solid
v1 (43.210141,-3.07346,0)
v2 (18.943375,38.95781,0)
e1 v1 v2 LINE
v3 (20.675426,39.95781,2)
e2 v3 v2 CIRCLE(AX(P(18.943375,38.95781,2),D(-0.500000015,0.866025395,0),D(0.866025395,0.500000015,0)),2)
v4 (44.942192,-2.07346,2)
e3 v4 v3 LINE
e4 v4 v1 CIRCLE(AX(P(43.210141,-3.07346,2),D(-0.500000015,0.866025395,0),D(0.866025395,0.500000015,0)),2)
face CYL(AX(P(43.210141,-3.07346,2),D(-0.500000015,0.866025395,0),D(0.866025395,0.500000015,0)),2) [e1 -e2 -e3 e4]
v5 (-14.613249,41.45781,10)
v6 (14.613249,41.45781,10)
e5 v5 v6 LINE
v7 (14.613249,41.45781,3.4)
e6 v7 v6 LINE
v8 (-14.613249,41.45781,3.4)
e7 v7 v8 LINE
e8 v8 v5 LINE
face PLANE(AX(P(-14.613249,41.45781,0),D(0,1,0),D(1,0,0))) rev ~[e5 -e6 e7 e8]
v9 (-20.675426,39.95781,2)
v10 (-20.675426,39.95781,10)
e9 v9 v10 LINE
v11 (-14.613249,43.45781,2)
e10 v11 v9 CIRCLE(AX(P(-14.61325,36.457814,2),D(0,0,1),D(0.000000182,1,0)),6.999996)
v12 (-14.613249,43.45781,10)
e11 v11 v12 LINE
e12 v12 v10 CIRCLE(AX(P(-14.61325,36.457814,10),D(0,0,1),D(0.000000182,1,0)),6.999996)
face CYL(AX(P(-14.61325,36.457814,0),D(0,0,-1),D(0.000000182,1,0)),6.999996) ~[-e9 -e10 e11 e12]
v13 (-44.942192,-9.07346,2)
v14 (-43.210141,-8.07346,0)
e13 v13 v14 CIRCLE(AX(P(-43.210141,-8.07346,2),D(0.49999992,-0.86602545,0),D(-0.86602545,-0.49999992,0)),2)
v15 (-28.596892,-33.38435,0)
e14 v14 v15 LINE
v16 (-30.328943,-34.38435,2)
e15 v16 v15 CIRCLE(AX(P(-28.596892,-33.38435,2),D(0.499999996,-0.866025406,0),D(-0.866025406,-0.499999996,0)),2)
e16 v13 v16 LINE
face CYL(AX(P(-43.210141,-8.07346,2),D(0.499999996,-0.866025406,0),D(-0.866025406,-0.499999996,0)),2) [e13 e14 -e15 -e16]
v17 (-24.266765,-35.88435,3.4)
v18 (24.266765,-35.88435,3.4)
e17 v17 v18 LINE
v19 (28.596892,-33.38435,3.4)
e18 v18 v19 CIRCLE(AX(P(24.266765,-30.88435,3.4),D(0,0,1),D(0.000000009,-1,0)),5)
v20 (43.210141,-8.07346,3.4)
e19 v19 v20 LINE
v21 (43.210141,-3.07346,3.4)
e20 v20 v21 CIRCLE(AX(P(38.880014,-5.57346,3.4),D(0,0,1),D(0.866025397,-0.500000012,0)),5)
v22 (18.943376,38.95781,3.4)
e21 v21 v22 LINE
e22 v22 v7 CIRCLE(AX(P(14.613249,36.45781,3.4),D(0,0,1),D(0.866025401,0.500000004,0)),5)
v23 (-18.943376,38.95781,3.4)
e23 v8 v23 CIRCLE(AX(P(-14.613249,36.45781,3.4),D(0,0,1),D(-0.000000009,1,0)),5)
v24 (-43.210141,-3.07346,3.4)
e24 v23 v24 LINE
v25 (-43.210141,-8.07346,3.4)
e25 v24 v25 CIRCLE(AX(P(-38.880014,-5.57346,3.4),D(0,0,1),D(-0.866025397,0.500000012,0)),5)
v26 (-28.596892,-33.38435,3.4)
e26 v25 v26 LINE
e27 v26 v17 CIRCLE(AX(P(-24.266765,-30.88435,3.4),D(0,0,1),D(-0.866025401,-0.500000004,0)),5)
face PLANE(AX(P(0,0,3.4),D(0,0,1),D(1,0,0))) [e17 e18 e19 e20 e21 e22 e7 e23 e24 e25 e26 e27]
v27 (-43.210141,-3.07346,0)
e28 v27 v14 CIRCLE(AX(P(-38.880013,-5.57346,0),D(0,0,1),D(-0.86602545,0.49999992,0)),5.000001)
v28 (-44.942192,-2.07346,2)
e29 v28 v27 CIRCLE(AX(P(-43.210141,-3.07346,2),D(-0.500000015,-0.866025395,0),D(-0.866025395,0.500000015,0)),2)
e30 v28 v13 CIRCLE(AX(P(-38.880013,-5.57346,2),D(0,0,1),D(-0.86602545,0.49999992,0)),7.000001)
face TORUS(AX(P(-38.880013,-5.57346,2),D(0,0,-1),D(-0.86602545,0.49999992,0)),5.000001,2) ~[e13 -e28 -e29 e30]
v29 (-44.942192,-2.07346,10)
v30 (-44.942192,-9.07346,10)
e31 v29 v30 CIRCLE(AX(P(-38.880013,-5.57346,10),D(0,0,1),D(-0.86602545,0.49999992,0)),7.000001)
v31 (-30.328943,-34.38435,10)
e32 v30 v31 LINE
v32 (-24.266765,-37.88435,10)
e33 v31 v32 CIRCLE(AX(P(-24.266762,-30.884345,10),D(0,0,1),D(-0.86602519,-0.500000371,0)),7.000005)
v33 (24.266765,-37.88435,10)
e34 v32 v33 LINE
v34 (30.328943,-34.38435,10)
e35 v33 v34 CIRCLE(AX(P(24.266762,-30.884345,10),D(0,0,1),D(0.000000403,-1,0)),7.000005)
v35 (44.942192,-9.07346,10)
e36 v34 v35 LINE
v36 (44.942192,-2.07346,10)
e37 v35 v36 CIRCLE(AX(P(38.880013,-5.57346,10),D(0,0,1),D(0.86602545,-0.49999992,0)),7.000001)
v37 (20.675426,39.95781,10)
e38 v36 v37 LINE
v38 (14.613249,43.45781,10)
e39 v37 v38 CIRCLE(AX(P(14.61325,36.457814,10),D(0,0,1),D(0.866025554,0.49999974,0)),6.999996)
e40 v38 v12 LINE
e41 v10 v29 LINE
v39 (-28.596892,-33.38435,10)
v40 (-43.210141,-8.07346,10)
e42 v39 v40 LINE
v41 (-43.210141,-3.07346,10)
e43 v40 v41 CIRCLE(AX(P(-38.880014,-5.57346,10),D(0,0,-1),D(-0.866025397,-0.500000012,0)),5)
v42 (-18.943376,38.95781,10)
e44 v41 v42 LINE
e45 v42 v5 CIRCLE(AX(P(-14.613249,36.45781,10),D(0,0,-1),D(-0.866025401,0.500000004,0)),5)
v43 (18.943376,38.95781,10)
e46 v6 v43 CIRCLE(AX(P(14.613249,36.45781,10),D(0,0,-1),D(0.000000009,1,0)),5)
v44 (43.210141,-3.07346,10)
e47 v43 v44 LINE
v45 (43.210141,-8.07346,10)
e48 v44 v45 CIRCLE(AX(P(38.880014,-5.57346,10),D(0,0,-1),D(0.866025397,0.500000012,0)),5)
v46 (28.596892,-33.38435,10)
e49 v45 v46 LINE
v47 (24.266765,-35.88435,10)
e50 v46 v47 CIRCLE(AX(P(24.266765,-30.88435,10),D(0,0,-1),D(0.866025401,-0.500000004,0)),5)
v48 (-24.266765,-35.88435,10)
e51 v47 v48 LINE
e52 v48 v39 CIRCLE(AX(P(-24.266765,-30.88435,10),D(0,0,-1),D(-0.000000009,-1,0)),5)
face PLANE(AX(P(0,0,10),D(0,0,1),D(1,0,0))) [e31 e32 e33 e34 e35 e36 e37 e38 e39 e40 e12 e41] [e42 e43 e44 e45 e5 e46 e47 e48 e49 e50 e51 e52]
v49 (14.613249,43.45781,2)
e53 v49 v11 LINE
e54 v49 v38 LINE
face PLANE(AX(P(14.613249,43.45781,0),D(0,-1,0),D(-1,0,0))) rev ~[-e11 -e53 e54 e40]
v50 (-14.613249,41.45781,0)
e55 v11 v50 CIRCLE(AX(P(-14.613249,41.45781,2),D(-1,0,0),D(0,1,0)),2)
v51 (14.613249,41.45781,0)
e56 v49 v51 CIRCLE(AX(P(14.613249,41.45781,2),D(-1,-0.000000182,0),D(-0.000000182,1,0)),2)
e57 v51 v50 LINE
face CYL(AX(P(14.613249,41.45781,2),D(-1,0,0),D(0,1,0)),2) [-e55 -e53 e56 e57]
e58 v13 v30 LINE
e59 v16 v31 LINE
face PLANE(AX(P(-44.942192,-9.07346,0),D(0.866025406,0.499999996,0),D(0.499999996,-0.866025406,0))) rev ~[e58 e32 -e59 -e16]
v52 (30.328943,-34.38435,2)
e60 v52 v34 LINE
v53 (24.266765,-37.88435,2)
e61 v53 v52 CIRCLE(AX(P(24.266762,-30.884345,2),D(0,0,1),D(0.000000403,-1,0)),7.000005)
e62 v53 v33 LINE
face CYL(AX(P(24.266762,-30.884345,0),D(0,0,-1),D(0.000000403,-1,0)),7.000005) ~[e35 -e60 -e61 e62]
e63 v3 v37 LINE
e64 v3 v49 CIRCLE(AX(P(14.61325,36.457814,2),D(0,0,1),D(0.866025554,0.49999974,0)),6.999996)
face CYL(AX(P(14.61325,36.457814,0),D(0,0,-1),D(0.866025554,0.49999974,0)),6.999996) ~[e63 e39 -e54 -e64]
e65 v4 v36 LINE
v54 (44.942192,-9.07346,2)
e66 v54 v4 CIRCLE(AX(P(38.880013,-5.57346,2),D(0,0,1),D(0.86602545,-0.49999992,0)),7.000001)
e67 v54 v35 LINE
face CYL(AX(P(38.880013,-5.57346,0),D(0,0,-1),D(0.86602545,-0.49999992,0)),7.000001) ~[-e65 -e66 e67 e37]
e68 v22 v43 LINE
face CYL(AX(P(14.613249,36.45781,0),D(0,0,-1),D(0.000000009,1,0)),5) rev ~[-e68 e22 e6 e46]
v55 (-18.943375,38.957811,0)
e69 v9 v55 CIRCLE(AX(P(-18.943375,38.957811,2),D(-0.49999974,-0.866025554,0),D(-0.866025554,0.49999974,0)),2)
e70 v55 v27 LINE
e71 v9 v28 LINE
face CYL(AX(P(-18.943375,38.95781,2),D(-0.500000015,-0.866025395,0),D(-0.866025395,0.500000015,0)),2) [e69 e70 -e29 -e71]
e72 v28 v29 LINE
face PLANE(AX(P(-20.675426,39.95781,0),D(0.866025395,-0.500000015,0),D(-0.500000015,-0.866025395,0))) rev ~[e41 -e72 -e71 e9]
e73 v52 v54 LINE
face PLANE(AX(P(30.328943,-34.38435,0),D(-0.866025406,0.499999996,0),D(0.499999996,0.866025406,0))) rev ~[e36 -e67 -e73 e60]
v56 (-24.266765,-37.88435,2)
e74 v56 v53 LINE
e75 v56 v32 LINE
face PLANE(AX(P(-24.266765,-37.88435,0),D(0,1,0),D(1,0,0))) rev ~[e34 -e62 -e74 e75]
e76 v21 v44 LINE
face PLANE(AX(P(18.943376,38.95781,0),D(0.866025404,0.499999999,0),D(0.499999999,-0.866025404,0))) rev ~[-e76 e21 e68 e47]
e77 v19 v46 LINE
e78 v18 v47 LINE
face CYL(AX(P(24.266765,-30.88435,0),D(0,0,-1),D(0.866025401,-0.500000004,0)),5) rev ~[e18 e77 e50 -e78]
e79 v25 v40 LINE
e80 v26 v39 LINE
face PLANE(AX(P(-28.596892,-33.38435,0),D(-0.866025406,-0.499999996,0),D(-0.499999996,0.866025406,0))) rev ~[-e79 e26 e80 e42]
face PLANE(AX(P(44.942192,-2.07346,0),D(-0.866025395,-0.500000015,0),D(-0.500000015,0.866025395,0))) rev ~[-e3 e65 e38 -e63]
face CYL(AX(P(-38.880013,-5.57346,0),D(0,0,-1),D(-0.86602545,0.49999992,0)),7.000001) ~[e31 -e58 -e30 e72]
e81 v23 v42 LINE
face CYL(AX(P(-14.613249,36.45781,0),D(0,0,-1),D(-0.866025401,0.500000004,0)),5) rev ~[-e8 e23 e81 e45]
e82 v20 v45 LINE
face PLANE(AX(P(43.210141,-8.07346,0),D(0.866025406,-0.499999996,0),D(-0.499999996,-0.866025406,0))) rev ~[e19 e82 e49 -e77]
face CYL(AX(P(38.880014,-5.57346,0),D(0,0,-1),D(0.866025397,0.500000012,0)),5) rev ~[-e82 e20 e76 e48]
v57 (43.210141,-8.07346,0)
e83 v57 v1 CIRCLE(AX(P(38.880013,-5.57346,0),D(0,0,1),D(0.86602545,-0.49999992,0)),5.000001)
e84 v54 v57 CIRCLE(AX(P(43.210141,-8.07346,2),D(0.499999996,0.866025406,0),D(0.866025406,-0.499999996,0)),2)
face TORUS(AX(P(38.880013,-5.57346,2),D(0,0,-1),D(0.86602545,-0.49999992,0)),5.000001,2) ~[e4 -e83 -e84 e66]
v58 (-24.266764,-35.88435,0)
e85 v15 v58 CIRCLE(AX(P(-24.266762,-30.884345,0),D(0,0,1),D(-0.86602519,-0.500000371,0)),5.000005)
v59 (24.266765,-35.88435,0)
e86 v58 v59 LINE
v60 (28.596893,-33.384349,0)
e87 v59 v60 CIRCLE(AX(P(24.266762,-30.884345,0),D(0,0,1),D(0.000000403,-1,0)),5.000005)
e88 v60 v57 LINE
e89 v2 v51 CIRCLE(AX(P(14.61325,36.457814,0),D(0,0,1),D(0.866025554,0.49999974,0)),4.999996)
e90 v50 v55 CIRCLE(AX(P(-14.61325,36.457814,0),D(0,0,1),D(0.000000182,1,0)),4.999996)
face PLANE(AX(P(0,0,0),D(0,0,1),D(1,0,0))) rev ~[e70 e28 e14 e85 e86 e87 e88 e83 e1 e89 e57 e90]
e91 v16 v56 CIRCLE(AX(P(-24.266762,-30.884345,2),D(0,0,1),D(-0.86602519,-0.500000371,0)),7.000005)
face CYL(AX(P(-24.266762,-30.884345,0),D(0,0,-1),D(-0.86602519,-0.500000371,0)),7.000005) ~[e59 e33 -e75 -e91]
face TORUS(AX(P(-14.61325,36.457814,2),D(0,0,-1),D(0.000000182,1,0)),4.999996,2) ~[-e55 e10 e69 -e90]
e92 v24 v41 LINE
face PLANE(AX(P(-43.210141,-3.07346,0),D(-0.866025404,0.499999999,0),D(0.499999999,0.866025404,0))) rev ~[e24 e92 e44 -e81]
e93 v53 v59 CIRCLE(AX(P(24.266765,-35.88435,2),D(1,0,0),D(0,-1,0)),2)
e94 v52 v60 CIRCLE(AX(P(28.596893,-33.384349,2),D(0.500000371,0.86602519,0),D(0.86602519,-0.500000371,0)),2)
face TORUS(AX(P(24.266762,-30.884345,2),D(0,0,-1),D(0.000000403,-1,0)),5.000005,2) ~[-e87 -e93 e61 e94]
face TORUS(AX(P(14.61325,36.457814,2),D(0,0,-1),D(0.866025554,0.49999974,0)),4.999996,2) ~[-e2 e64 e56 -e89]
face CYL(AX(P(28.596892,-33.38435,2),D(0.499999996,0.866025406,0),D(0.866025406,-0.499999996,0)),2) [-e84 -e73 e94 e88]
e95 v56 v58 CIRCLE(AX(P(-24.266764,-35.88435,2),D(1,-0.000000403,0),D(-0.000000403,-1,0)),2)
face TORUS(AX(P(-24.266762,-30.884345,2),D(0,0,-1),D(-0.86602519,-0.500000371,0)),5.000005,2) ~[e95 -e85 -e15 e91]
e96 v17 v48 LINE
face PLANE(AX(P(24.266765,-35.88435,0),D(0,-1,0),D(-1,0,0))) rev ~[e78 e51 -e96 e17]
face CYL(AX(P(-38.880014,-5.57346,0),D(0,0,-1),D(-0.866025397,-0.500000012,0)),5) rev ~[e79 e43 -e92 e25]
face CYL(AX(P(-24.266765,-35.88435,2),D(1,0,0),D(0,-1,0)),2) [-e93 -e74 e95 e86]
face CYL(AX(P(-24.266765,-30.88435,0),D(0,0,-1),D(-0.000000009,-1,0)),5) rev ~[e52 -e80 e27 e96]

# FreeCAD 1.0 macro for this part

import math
import FreeCAD as App
import Part
import Sketcher
Q = App.Units.Quantity


def edges_at(feature, points):
    """Names of the edges that pass closest to the given points."""
    edges = feature.Shape.Edges
    near = lambda p: min(range(len(edges)), key=lambda i: edges[i].distToShape(Part.Vertex(*p))[0])
    return sorted({f"Edge{near(p) + 1}" for p in points})

doc = App.newDocument("Part")
body = doc.addObject("PartDesign::Body", "Body")

sketch1 = body.newObject("Sketcher::SketchObject", "Sketch")
sketch1.AttachmentSupport = (doc.getObject("XY_Plane"), [""])
sketch1.MapMode = "FlatFace"
sketch1.addGeometry([
    Part.ArcOfCircle(Part.Circle(App.Vector(14.6, 36.5, 0), App.Vector(0, 0, 1), 5), math.radians(30), math.radians(90)),
    Part.LineSegment(App.Vector(14.6, 41.5, 0), App.Vector(-14.6, 41.5, 0)),
    Part.ArcOfCircle(Part.Circle(App.Vector(-14.6, 36.5, 0), App.Vector(0, 0, 1), 5), math.radians(90), math.radians(150)),
    Part.LineSegment(App.Vector(-18.9, 39, 0), App.Vector(-43.2, -3.1, 0)),
    Part.ArcOfCircle(Part.Circle(App.Vector(-38.9, -5.6, 0), App.Vector(0, 0, 1), 5), math.radians(150), math.radians(210)),
    Part.LineSegment(App.Vector(-43.2, -8.1, 0), App.Vector(-28.6, -33.4, 0)),
    Part.ArcOfCircle(Part.Circle(App.Vector(-24.3, -30.9, 0), App.Vector(0, 0, 1), 5), math.radians(-150), math.radians(-90)),
    Part.LineSegment(App.Vector(-24.3, -35.9, 0), App.Vector(24.3, -35.9, 0)),
    Part.ArcOfCircle(Part.Circle(App.Vector(24.3, -30.9, 0), App.Vector(0, 0, 1), 5), math.radians(-90), math.radians(-30)),
    Part.LineSegment(App.Vector(28.6, -33.4, 0), App.Vector(43.2, -8.1, 0)),
    Part.ArcOfCircle(Part.Circle(App.Vector(38.9, -5.6, 0), App.Vector(0, 0, 1), 5), math.radians(-30), math.radians(30)),
    Part.LineSegment(App.Vector(43.2, -3.1, 0), App.Vector(18.9, 39, 0)),
], False)
sketch1.addConstraint([
    Sketcher.Constraint("Tangent", 0, 2, 1, 1),
    Sketcher.Constraint("Tangent", 1, 2, 2, 1),
    Sketcher.Constraint("Tangent", 2, 2, 3, 1),
    Sketcher.Constraint("Tangent", 3, 2, 4, 1),
    Sketcher.Constraint("Tangent", 4, 2, 5, 1),
    Sketcher.Constraint("Tangent", 5, 2, 6, 1),
    Sketcher.Constraint("Tangent", 6, 2, 7, 1),
    Sketcher.Constraint("Tangent", 7, 2, 8, 1),
    Sketcher.Constraint("Tangent", 8, 2, 9, 1),
    Sketcher.Constraint("Tangent", 9, 2, 10, 1),
    Sketcher.Constraint("Tangent", 10, 2, 11, 1),
    Sketcher.Constraint("Tangent", 11, 2, 0, 1),
    Sketcher.Constraint("Horizontal", 1),
    Sketcher.Constraint("Horizontal", 7),
    Sketcher.Constraint("Equal", 0, 2),
    Sketcher.Constraint("Equal", 2, 4),
    Sketcher.Constraint("Equal", 4, 6),
    Sketcher.Constraint("Equal", 6, 8),
    Sketcher.Constraint("Equal", 8, 10),
    Sketcher.Constraint("Symmetric", 4, 3, 10, 3, -2),
    Sketcher.Constraint("Parallel", 3, 9),
    Sketcher.Constraint("Parallel", 5, 11),
    Sketcher.Constraint("Horizontal", 5, 2, 8, 2),
    Sketcher.Constraint("Radius", 0, 5.0),
    Sketcher.Constraint("Angle", 3, Q("-120 deg")),
    Sketcher.Constraint("Distance", 5, 29.226498),
    Sketcher.Constraint("DistanceX", 7, 1, 7, 2, 48.53353),
    Sketcher.Constraint("Distance", 3, 48.53353),
    Sketcher.Constraint("DistanceY", -1, 1, 0, 3, 36.45781),
])
pad1 = body.newObject("PartDesign::Pad", "Pad")
pad1.Profile = sketch1
pad1.Length = 3.4

sketch2 = body.newObject("Sketcher::SketchObject", "Sketch001")
sketch2.AttachmentSupport = (doc.getObject("XY_Plane"), [""])
sketch2.MapMode = "FlatFace"
sketch2.addGeometry([
    Part.LineSegment(App.Vector(44.9, -2.1, 0), App.Vector(20.7, 40, 0)),
    Part.ArcOfCircle(Part.Circle(App.Vector(14.6, 36.5, 0), App.Vector(0, 0, 1), 7), math.radians(30), math.radians(90)),
    Part.LineSegment(App.Vector(14.6, 43.5, 0), App.Vector(-14.6, 43.5, 0)),
    Part.ArcOfCircle(Part.Circle(App.Vector(-14.6, 36.5, 0), App.Vector(0, 0, 1), 7), math.radians(90), math.radians(150)),
    Part.LineSegment(App.Vector(-20.7, 40, 0), App.Vector(-44.9, -2.1, 0)),
    Part.ArcOfCircle(Part.Circle(App.Vector(-38.9, -5.6, 0), App.Vector(0, 0, 1), 7), math.radians(150), math.radians(210)),
    Part.LineSegment(App.Vector(-44.9, -9.1, 0), App.Vector(-30.3, -34.4, 0)),
    Part.ArcOfCircle(Part.Circle(App.Vector(-24.3, -30.9, 0), App.Vector(0, 0, 1), 7), math.radians(-150), math.radians(-90)),
    Part.LineSegment(App.Vector(-24.3, -37.9, 0), App.Vector(24.3, -37.9, 0)),
    Part.ArcOfCircle(Part.Circle(App.Vector(24.3, -30.9, 0), App.Vector(0, 0, 1), 7), math.radians(-90), math.radians(-30)),
    Part.LineSegment(App.Vector(30.3, -34.4, 0), App.Vector(44.9, -9.1, 0)),
    Part.ArcOfCircle(Part.Circle(App.Vector(38.9, -5.6, 0), App.Vector(0, 0, 1), 7), math.radians(-30), math.radians(30)),
    Part.ArcOfCircle(Part.Circle(App.Vector(-14.6, 36.5, 0), App.Vector(0, 0, 1), 5), math.radians(90), math.radians(150)),
    Part.LineSegment(App.Vector(-14.6, 41.5, 0), App.Vector(14.6, 41.5, 0)),
    Part.ArcOfCircle(Part.Circle(App.Vector(14.6, 36.5, 0), App.Vector(0, 0, 1), 5), math.radians(30), math.radians(90)),
    Part.LineSegment(App.Vector(18.9, 39, 0), App.Vector(43.2, -3.1, 0)),
    Part.ArcOfCircle(Part.Circle(App.Vector(38.9, -5.6, 0), App.Vector(0, 0, 1), 5), math.radians(-30), math.radians(30)),
    Part.LineSegment(App.Vector(43.2, -8.1, 0), App.Vector(28.6, -33.4, 0)),
    Part.ArcOfCircle(Part.Circle(App.Vector(24.3, -30.9, 0), App.Vector(0, 0, 1), 5), math.radians(-90), math.radians(-30)),
    Part.LineSegment(App.Vector(24.3, -35.9, 0), App.Vector(-24.3, -35.9, 0)),
    Part.ArcOfCircle(Part.Circle(App.Vector(-24.3, -30.9, 0), App.Vector(0, 0, 1), 5), math.radians(-150), math.radians(-90)),
    Part.LineSegment(App.Vector(-28.6, -33.4, 0), App.Vector(-43.2, -8.1, 0)),
    Part.ArcOfCircle(Part.Circle(App.Vector(-38.9, -5.6, 0), App.Vector(0, 0, 1), 5), math.radians(150), math.radians(210)),
    Part.LineSegment(App.Vector(-43.2, -3.1, 0), App.Vector(-18.9, 39, 0)),
], False)
sketch2.addConstraint([
    Sketcher.Constraint("Tangent", 0, 2, 1, 1),
    Sketcher.Constraint("Tangent", 1, 2, 2, 1),
    Sketcher.Constraint("Tangent", 2, 2, 3, 1),
    Sketcher.Constraint("Tangent", 3, 2, 4, 1),
    Sketcher.Constraint("Tangent", 4, 2, 5, 1),
    Sketcher.Constraint("Tangent", 5, 2, 6, 1),
    Sketcher.Constraint("Tangent", 6, 2, 7, 1),
    Sketcher.Constraint("Tangent", 7, 2, 8, 1),
    Sketcher.Constraint("Tangent", 8, 2, 9, 1),
    Sketcher.Constraint("Tangent", 9, 2, 10, 1),
    Sketcher.Constraint("Tangent", 10, 2, 11, 1),
    Sketcher.Constraint("Tangent", 11, 2, 0, 1),
    Sketcher.Constraint("Tangent", 12, 1, 13, 1),
    Sketcher.Constraint("Tangent", 13, 2, 14, 2),
    Sketcher.Constraint("Tangent", 14, 1, 15, 1),
    Sketcher.Constraint("Tangent", 15, 2, 16, 2),
    Sketcher.Constraint("Tangent", 16, 1, 17, 1),
    Sketcher.Constraint("Tangent", 17, 2, 18, 2),
    Sketcher.Constraint("Tangent", 18, 1, 19, 1),
    Sketcher.Constraint("Tangent", 19, 2, 20, 2),
    Sketcher.Constraint("Tangent", 20, 1, 21, 1),
    Sketcher.Constraint("Tangent", 21, 2, 22, 2),
    Sketcher.Constraint("Tangent", 22, 1, 23, 1),
    Sketcher.Constraint("Tangent", 23, 2, 12, 2),
    Sketcher.Constraint("Horizontal", 2),
    Sketcher.Constraint("Horizontal", 8),
    Sketcher.Constraint("Horizontal", 13),
    Sketcher.Constraint("Horizontal", 19),
    Sketcher.Constraint("Coincident", 12, 3, 3, 3),
    Sketcher.Constraint("Coincident", 14, 3, 1, 3),
    Sketcher.Constraint("Coincident", 16, 3, 11, 3),
    Sketcher.Constraint("Coincident", 18, 3, 9, 3),
    Sketcher.Constraint("Coincident", 20, 3, 7, 3),
    Sketcher.Constraint("Coincident", 22, 3, 5, 3),
    Sketcher.Constraint("Equal", 1, 3),
    Sketcher.Constraint("Equal", 7, 9),
    Sketcher.Constraint("Equal", 5, 11),
    Sketcher.Constraint("Equal", 14, 16),
    Sketcher.Constraint("Equal", 16, 18),
    Sketcher.Constraint("Equal", 20, 22),
    Sketcher.Constraint("Symmetric", 5, 3, 11, 3, -2),
    Sketcher.Constraint("Parallel", 0, 6),
    Sketcher.Constraint("Parallel", 4, 10),
    Sketcher.Constraint("Parallel", 6, 15),
    Sketcher.Constraint("Parallel", 10, 17),
    Sketcher.Constraint("Horizontal", 0, 2, 3, 2),
    Sketcher.Constraint("Radius", 5, 7.000001),
    Sketcher.Constraint("Radius", 12, 5.0),
    Sketcher.Constraint("Angle", 0, Q("120.000001 deg")),
    Sketcher.Constraint("Distance", 6, 29.226498),
    Sketcher.Constraint("DistanceX", 8, 1, 8, 2, 48.53353),
    Sketcher.Constraint("DistanceX", 3, 3, 1, 3, 29.226501),
    Sketcher.Constraint("DistanceY", 5, 3, -1, 1, 5.57346),
])
pad2 = body.newObject("PartDesign::Pad", "Pad001")
pad2.Profile = sketch2
pad2.Length = 10
doc.recompute()

fillet = body.newObject("PartDesign::Fillet", "Fillet")
fillet.Base = (pad2, edges_at(pad2, [(32.809, 18.942, 0)]))
fillet.Radius = 2

doc.recompute()
